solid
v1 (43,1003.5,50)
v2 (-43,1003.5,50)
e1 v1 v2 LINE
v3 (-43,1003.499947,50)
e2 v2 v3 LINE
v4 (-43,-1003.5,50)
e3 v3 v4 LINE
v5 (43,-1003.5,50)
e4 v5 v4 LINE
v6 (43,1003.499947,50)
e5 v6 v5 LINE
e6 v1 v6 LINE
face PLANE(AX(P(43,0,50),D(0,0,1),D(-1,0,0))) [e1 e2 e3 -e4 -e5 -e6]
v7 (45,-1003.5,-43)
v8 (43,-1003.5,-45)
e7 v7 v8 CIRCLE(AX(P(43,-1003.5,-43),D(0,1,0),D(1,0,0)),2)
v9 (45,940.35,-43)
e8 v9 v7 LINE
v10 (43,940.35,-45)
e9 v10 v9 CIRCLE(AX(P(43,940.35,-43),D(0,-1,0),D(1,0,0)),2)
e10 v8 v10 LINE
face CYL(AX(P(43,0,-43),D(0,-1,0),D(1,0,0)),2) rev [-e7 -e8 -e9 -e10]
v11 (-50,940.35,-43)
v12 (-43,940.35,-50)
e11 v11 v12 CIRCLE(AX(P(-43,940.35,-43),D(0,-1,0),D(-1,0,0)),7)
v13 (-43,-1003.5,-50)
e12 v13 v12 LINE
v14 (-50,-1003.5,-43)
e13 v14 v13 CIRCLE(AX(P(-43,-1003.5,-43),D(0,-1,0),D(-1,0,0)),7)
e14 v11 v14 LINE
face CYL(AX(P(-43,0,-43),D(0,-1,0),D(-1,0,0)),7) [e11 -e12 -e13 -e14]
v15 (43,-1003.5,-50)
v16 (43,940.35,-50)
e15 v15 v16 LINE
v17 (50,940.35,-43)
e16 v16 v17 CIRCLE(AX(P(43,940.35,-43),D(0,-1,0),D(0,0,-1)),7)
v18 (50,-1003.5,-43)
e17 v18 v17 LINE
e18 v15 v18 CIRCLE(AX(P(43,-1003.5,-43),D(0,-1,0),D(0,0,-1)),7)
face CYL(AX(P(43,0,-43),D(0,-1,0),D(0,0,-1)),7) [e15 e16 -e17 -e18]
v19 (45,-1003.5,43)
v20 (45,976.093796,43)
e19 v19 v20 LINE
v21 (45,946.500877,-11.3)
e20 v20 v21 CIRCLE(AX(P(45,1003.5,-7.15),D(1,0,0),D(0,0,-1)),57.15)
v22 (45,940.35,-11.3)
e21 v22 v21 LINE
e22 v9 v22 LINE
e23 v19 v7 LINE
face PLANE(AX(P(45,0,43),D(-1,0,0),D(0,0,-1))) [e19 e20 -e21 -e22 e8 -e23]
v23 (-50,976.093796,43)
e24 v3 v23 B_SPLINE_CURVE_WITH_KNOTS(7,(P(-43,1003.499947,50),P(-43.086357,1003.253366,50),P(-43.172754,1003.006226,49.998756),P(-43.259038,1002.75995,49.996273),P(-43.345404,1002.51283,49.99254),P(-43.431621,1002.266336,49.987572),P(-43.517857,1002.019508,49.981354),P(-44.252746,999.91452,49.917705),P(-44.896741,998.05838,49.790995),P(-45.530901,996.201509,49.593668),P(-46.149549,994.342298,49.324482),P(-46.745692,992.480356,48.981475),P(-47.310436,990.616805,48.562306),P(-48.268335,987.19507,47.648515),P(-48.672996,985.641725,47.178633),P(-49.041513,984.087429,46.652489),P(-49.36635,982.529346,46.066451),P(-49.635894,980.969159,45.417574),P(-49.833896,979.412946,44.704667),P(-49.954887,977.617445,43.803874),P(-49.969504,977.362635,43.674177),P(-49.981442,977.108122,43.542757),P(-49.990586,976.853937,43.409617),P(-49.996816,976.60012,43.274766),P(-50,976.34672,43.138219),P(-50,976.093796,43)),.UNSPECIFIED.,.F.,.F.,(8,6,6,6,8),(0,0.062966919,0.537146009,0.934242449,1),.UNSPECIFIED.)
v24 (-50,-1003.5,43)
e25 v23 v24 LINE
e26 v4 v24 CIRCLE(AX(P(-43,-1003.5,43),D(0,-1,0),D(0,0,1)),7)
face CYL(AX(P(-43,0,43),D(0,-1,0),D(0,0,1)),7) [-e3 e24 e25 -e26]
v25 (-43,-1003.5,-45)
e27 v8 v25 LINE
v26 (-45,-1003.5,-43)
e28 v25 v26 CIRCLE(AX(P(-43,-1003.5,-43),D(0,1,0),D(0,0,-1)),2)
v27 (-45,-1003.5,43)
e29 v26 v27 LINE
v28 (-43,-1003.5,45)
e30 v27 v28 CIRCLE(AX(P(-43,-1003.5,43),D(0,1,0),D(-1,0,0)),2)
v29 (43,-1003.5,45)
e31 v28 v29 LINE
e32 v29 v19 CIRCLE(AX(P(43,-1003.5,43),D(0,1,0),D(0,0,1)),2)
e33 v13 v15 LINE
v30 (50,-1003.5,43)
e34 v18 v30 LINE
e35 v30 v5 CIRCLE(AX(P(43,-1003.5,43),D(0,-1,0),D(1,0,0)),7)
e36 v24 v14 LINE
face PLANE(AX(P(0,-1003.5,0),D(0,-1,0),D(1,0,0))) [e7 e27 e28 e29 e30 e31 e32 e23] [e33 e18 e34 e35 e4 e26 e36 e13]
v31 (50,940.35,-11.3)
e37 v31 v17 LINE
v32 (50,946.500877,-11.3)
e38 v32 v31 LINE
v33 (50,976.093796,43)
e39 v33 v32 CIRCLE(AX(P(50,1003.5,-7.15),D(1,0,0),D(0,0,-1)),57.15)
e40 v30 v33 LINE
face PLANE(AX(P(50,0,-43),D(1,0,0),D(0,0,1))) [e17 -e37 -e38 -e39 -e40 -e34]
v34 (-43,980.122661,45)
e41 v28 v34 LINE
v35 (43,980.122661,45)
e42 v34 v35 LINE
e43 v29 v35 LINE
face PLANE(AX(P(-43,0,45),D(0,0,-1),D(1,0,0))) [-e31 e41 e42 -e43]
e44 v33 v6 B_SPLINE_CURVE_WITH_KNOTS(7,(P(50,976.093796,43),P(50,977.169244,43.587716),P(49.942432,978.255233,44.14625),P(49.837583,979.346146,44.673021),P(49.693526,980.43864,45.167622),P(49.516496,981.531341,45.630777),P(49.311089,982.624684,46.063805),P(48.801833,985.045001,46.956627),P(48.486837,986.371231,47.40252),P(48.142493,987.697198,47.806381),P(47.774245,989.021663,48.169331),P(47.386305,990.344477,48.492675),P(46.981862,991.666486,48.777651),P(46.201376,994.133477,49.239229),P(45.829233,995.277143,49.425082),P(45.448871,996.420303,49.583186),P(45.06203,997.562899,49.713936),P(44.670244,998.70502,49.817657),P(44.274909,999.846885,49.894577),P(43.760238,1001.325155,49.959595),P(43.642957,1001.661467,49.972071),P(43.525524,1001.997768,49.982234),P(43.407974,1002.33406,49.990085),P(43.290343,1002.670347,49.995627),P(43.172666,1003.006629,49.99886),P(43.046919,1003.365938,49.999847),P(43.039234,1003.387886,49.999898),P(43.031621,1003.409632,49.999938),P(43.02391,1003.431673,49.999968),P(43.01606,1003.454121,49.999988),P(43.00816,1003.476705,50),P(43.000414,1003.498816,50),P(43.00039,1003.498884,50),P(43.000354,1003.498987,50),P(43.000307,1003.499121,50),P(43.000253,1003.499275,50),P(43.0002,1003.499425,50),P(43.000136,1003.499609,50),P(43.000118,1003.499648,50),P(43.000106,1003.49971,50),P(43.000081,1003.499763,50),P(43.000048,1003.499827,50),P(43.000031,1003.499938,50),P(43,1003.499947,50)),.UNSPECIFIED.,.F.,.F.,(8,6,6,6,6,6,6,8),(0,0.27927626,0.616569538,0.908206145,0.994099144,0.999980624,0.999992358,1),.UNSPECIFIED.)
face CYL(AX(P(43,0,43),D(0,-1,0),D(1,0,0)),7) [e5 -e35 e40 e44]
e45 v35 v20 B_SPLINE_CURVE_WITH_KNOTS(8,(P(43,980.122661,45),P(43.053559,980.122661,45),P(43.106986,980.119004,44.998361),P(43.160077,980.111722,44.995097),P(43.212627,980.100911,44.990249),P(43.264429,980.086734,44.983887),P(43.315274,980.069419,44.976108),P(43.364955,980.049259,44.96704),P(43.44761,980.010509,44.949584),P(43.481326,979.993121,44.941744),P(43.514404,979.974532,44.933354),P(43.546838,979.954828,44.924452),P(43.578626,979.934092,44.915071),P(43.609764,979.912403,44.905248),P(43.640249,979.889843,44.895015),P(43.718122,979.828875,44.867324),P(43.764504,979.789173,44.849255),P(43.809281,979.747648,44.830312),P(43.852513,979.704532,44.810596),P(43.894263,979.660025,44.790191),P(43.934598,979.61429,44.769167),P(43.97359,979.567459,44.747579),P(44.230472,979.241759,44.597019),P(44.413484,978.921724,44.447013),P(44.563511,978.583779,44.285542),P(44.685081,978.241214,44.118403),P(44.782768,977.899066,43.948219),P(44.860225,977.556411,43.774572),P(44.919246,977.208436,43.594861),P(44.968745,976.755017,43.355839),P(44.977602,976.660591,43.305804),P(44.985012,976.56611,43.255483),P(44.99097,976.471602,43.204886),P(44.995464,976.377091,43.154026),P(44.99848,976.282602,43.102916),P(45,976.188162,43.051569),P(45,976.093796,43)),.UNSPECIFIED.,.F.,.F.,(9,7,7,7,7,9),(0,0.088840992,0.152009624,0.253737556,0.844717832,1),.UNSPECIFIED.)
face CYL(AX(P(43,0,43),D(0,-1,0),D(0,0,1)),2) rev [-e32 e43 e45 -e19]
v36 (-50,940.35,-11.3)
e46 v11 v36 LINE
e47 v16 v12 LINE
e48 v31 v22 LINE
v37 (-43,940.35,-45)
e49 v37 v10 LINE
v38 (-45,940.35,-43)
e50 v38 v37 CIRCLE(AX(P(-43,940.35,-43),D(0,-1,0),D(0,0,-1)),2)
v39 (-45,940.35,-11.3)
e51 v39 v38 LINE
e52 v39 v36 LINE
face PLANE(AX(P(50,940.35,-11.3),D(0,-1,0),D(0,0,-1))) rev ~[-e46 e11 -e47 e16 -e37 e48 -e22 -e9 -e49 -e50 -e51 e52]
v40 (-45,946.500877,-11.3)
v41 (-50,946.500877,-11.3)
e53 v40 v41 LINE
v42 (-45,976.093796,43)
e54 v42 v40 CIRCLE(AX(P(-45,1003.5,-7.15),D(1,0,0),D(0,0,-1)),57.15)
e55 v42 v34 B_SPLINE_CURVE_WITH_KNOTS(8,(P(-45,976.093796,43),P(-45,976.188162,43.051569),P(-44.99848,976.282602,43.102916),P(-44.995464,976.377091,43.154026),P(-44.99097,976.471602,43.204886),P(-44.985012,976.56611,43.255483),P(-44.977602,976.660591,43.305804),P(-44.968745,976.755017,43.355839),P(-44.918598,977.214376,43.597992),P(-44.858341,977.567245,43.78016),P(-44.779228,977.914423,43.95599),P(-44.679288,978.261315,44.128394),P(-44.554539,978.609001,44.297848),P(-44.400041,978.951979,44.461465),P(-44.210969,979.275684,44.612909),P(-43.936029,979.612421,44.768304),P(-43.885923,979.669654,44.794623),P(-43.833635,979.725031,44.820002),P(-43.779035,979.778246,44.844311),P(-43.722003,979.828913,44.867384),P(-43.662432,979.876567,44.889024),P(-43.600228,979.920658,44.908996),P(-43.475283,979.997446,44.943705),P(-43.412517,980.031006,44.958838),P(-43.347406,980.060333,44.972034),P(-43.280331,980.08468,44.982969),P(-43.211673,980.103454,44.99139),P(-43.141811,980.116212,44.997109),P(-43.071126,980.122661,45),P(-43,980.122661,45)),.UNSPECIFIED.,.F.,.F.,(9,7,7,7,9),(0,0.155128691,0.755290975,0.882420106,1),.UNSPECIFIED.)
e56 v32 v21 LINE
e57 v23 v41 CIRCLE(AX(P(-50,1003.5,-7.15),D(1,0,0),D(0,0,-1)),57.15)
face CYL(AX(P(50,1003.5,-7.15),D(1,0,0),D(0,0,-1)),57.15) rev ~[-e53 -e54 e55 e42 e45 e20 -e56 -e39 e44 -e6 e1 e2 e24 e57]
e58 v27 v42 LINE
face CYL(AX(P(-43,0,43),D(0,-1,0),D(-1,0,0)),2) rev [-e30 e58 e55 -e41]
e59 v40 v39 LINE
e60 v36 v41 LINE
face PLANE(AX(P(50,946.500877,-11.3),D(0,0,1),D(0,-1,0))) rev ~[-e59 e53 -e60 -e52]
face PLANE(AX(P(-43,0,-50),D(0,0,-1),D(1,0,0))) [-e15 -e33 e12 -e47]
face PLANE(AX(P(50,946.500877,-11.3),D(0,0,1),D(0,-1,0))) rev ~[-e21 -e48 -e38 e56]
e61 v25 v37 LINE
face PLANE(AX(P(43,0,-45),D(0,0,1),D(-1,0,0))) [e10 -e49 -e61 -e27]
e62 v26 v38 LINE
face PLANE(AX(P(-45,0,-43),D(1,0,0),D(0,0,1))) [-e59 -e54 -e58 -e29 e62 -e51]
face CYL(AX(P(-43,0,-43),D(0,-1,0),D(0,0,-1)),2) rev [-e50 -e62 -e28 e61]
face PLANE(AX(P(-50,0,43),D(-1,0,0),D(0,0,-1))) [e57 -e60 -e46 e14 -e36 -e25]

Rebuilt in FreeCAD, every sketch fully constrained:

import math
import FreeCAD as App
import Part
import Sketcher
Q = App.Units.Quantity

doc = App.newDocument("Part")
params = doc.addObject("Spreadsheet::Sheet", "Params")
for row, (alias, value) in enumerate([
    ("sketch1_radius", "7 mm"),
    ("sketch1_radius2", "2 mm"),
    ("sketch1_width", "86 mm"),
    ("pad1_length", "2007 mm"),
    ("sketch2_height", "53 mm"),
    ("sketch2_radius", "57.15 mm"),
    ("sketch2_width", "63.15 mm"),
], start=1):
    params.set(f"A{row}", alias)
    params.set(f"B{row}", "=" + value)
    params.setAlias(f"B{row}", alias)

body = doc.addObject("PartDesign::Body", "Body")

# Sketch on XZ plane
sketch1 = body.newObject("Sketcher::SketchObject", "Sketch")
sketch1.AttachmentSupport = (doc.getObject("XZ_Plane"), [""])
sketch1.MapMode = "FlatFace"
sketch1.addGeometry([
    Part.ArcOfCircle(Part.Circle(App.Vector(43, 43, 0), App.Vector(0, 0, 1), 7), math.radians(0), math.radians(90)),  # 0
    Part.LineSegment(App.Vector(43, 50, 0), App.Vector(-43, 50, 0)),  # 1
    Part.ArcOfCircle(Part.Circle(App.Vector(-43, 43, 0), App.Vector(0, 0, 1), 7), math.radians(90), math.radians(180)),  # 2
    Part.LineSegment(App.Vector(-50, 43, 0), App.Vector(-50, -43, 0)),  # 3
    Part.ArcOfCircle(Part.Circle(App.Vector(-43, -43, 0), App.Vector(0, 0, 1), 7), math.radians(180), math.radians(270)),  # 4
    Part.LineSegment(App.Vector(-43, -50, 0), App.Vector(43, -50, 0)),  # 5
    Part.ArcOfCircle(Part.Circle(App.Vector(43, -43, 0), App.Vector(0, 0, 1), 7), math.radians(-90), math.radians(0)),  # 6
    Part.LineSegment(App.Vector(50, -43, 0), App.Vector(50, 43, 0)),  # 7
    Part.LineSegment(App.Vector(45, 43, 0), App.Vector(45, -43, 0)),  # 8
    Part.ArcOfCircle(Part.Circle(App.Vector(43, -43, 0), App.Vector(0, 0, 1), 2), math.radians(-90), math.radians(0)),  # 9
    Part.LineSegment(App.Vector(43, -45, 0), App.Vector(-43, -45, 0)),  # 10
    Part.ArcOfCircle(Part.Circle(App.Vector(-43, -43, 0), App.Vector(0, 0, 1), 2), math.radians(180), math.radians(270)),  # 11
    Part.LineSegment(App.Vector(-45, -43, 0), App.Vector(-45, 43, 0)),  # 12
    Part.ArcOfCircle(Part.Circle(App.Vector(-43, 43, 0), App.Vector(0, 0, 1), 2), math.radians(90), math.radians(180)),  # 13
    Part.LineSegment(App.Vector(-43, 45, 0), App.Vector(43, 45, 0)),  # 14
    Part.ArcOfCircle(Part.Circle(App.Vector(43, 43, 0), App.Vector(0, 0, 1), 2), math.radians(0), math.radians(90)),  # 15
], False)
sketch1.addConstraint([
    Sketcher.Constraint("Tangent", 0, 2, 1, 1),
    Sketcher.Constraint("Tangent", 1, 2, 2, 1),
    Sketcher.Constraint("Tangent", 2, 2, 3, 1),
    Sketcher.Constraint("Tangent", 3, 2, 4, 1),
    Sketcher.Constraint("Tangent", 4, 2, 5, 1),
    Sketcher.Constraint("Tangent", 5, 2, 6, 1),
    Sketcher.Constraint("Tangent", 6, 2, 7, 1),
    Sketcher.Constraint("Tangent", 7, 2, 0, 1),
    Sketcher.Constraint("Tangent", 8, 2, 9, 2),
    Sketcher.Constraint("Tangent", 9, 1, 10, 1),
    Sketcher.Constraint("Tangent", 10, 2, 11, 2),
    Sketcher.Constraint("Tangent", 11, 1, 12, 1),
    Sketcher.Constraint("Tangent", 12, 2, 13, 2),
    Sketcher.Constraint("Tangent", 13, 1, 14, 1),
    Sketcher.Constraint("Tangent", 14, 2, 15, 2),
    Sketcher.Constraint("Tangent", 15, 1, 8, 1),
    Sketcher.Constraint("Horizontal", 1),
    Sketcher.Constraint("Vertical", 3),
    Sketcher.Constraint("Horizontal", 5),
    Sketcher.Constraint("Vertical", 7),
    Sketcher.Constraint("Vertical", 8),
    Sketcher.Constraint("Horizontal", 10),
    Sketcher.Constraint("Vertical", 12),
    Sketcher.Constraint("Horizontal", 14),
    Sketcher.Constraint("Coincident", 9, 3, 6, 3),
    Sketcher.Constraint("Coincident", 11, 3, 4, 3),
    Sketcher.Constraint("Coincident", 13, 3, 2, 3),
    Sketcher.Constraint("Equal", 0, 2),
    Sketcher.Constraint("Equal", 2, 4),
    Sketcher.Constraint("Equal", 4, 6),
    Sketcher.Constraint("Equal", 13, 15),
    Sketcher.Constraint("Symmetric", 0, 3, 4, 3, -1, 1),
    Sketcher.Constraint("Equal", 14, 3),
    Sketcher.Constraint("Radius", 0, Q("7 mm")),
    Sketcher.Constraint("Radius", 9, Q("2 mm")),
    Sketcher.Constraint("DistanceX", 1, 2, 1, 1, Q("86 mm")),
])
sketch1.setExpression("Constraints[33]", "Params.sketch1_radius")
sketch1.setExpression("Constraints[34]", "Params.sketch1_radius2")
sketch1.setExpression("Constraints[35]", "Params.sketch1_width")
pad1 = body.newObject("PartDesign::Pad", "Pad")
pad1.Profile = sketch1
pad1.setExpression("Length", "Params.pad1_length")
pad1.Midplane = True

# Sketch on YZ plane
sketch2 = body.newObject("Sketcher::SketchObject", "Sketch001")
sketch2.AttachmentSupport = (doc.getObject("YZ_Plane"), [""])
sketch2.MapMode = "FlatFace"
sketch2.AttachmentOffset = App.Placement(App.Vector(0, 0, 50), App.Rotation())
sketch2.addGeometry([
    Part.LineSegment(App.Vector(940, -64, 0), App.Vector(1004, -64, 0)),
    Part.ArcOfCircle(Part.Circle(App.Vector(1004, -7, 0), App.Vector(0, 0, 1), 57), math.radians(-90), math.radians(184)),
    Part.LineSegment(App.Vector(947, -11, 0), App.Vector(940, -11, 0)),
    Part.LineSegment(App.Vector(940, -11, 0), App.Vector(940, -64, 0)),
], False)
sketch2.addConstraint([
    Sketcher.Constraint("Tangent", 0, 2, 1, 1),
    Sketcher.Constraint("Coincident", 1, 2, 2, 1),
    Sketcher.Constraint("Coincident", 2, 2, 3, 1),
    Sketcher.Constraint("Coincident", 3, 2, 0, 1),
    Sketcher.Constraint("Horizontal", 0),
    Sketcher.Constraint("Horizontal", 2),
    Sketcher.Constraint("Vertical", 3),
    Sketcher.Constraint("DistanceY", 3, 2, 3, 1, Q("53 mm")),
    Sketcher.Constraint("Radius", 1, Q("57.15 mm")),
    Sketcher.Constraint("DistanceX", 0, 1, 0, 2, Q("63.15 mm")),
    Sketcher.Constraint("DistanceX", -1, 1, 1, 3, Q("1003.5 mm")),
    Sketcher.Constraint("DistanceY", 0, 2, -1, 1, Q("64.3 mm")),
])
sketch2.setExpression("Constraints[7]", "Params.sketch2_height")
sketch2.setExpression("Constraints[8]", "Params.sketch2_radius")
sketch2.setExpression("Constraints[9]", "Params.sketch2_width")
pocket1 = body.newObject("PartDesign::Pocket", "Pocket")
pocket1.Profile = sketch2
pocket1.Type = "ThroughAll"

doc.recompute()
